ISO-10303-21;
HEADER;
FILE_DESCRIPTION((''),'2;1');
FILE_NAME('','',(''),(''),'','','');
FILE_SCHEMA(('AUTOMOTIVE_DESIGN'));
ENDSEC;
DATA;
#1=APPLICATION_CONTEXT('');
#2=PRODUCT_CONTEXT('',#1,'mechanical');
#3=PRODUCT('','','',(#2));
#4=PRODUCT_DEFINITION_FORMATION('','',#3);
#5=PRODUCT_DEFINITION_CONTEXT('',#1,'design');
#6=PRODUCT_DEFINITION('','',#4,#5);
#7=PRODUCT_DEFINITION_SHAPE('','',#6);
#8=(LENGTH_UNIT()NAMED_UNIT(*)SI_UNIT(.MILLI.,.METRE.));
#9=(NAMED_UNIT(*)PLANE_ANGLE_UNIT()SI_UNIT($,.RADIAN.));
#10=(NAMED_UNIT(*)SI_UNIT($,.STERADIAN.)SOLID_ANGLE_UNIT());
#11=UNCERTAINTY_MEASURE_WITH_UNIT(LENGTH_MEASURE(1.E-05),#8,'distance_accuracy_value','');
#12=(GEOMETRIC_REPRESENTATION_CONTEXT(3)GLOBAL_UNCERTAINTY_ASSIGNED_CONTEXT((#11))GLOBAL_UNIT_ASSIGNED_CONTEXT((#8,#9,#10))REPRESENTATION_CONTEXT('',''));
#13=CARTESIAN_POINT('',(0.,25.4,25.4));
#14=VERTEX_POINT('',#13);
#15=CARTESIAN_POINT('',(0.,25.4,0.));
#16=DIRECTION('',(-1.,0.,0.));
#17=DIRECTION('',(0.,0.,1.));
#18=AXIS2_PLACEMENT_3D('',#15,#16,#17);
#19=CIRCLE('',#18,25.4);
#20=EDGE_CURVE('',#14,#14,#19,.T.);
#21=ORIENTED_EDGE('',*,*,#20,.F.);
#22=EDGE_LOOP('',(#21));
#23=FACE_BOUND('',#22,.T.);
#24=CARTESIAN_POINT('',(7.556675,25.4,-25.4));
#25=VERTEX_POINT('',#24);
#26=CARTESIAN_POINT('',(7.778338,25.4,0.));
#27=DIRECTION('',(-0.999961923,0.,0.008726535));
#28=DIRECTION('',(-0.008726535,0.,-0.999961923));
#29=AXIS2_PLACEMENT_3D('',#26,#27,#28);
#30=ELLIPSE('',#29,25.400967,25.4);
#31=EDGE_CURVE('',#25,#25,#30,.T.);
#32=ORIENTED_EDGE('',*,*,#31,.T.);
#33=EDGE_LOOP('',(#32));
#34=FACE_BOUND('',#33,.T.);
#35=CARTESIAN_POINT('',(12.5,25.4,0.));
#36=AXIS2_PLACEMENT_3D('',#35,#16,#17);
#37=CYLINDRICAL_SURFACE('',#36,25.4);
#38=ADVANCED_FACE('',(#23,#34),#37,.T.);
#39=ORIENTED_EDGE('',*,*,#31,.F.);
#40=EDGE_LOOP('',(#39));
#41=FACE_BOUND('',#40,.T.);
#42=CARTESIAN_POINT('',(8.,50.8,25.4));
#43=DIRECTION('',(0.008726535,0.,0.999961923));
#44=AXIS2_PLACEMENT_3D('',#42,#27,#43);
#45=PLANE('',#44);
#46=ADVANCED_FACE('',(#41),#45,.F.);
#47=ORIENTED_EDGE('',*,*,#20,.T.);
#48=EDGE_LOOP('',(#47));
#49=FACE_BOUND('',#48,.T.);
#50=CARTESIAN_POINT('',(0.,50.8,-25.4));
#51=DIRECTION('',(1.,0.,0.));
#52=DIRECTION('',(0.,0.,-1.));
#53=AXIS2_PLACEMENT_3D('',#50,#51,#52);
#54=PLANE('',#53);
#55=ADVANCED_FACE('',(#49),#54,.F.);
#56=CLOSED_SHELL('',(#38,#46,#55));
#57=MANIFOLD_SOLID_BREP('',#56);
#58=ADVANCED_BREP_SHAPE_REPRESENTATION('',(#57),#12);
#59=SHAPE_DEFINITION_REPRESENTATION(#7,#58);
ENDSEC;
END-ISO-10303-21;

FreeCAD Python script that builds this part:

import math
import FreeCAD as App
import Part
import Sketcher
Q = App.Units.Quantity


def add_polygon(sketch, points):
    """Adds a closed chain of lines whose ends are joined by coincident constraints."""
    first, n = sketch.GeometryCount, len(points)
    for a, b in zip(points, points[1:] + points[:1]):
        sketch.addGeometry(Part.LineSegment(App.Vector(*a, 0), App.Vector(*b, 0)), False)
    for i in range(n):
        sketch.addConstraint(Sketcher.Constraint("Coincident", first + i, 2, first + (i + 1) % n, 1))

doc = App.newDocument("Part")
params = doc.addObject("Spreadsheet::Sheet", "Params")
for row, (alias, value) in enumerate([
    ("sketch1_width", "8 mm"),
    ("sketch1_height", "50.8 mm"),
    ("pad1_length", "50.8 mm"),
    ("sketch2_radius", "25.4 mm"),
    ("pocket1_length", "12.5 mm"),
], start=1):
    params.set(f"A{row}", alias)
    params.set(f"B{row}", "=" + value)
    params.setAlias(f"B{row}", alias)

body = doc.addObject("PartDesign::Body", "Body")

# Sketch on XZ plane
sketch1 = body.newObject("Sketcher::SketchObject", "Sketch")
sketch1.AttachmentSupport = (doc.getObject("XZ_Plane"), [""])
sketch1.MapMode = "FlatFace"
add_polygon(sketch1, [(0, -25.4), (0, 25.4), (8, 25.4), (7.556675, -25.4)])  # lines 0-3
sketch1.addConstraint([
    Sketcher.Constraint("Vertical", 0),
    Sketcher.Constraint("Horizontal", 1),
    Sketcher.Constraint("Horizontal", 3),
    Sketcher.Constraint("Symmetric", 0, 2, 3, 2, -1, 1),
    Sketcher.Constraint("DistanceX", 1, 1, 1, 2, 8.0),
    Sketcher.Constraint("DistanceY", 0, 1, 0, 2, 50.8),
    Sketcher.Constraint("Angle", 2, Q("-90.5 deg")),
])
sketch1.setExpression("Constraints[8]", "Params.sketch1_width")
sketch1.setExpression("Constraints[9]", "Params.sketch1_height")
pad1 = body.newObject("PartDesign::Pad", "Pad")
pad1.Profile = sketch1
pad1.setExpression("Length", "Params.pad1_length")
pad1.Reversed = True

# Sketch on YZ plane
sketch2 = body.newObject("Sketcher::SketchObject", "Sketch001")
sketch2.AttachmentSupport = (doc.getObject("YZ_Plane"), [""])
sketch2.MapMode = "FlatFace"
sketch2.addGeometry([
    Part.LineSegment(App.Vector(50.8, -25.4, 0), App.Vector(25.4, -25.4, 0)),  # 0
    Part.ArcOfCircle(Part.Circle(App.Vector(25.4, 0, 0), App.Vector(0, 0, 1), 25.4), math.radians(-90), math.radians(0)),  # 1
    Part.LineSegment(App.Vector(50.8, 0, 0), App.Vector(50.8, -25.4, 0)),  # 2
    Part.LineSegment(App.Vector(25.4, -25.4, 0), App.Vector(0, -25.4, 0)),  # 3
    Part.LineSegment(App.Vector(0, -25.4, 0), App.Vector(0, 0, 0)),  # 4
    Part.ArcOfCircle(Part.Circle(App.Vector(25.4, 0, 0), App.Vector(0, 0, 1), 25.4), math.radians(-180), math.radians(-90)),  # 5
    Part.ArcOfCircle(Part.Circle(App.Vector(25.4, 0, 0), App.Vector(0, 0, 1), 25.4), math.radians(90), math.radians(180)),  # 6
    Part.LineSegment(App.Vector(0, 0, 0), App.Vector(0, 25.4, 0)),  # 7
    Part.LineSegment(App.Vector(0, 25.4, 0), App.Vector(25.4, 25.4, 0)),  # 8
    Part.ArcOfCircle(Part.Circle(App.Vector(25.4, 0, 0), App.Vector(0, 0, 1), 25.4), math.radians(0), math.radians(90)),  # 9
    Part.LineSegment(App.Vector(25.4, 25.4, 0), App.Vector(50.8, 25.4, 0)),  # 10
    Part.LineSegment(App.Vector(50.8, 25.4, 0), App.Vector(50.8, 0, 0)),  # 11
], False)
sketch2.addConstraint([
    Sketcher.Constraint("Tangent", 0, 2, 1, 1),
    Sketcher.Constraint("Tangent", 1, 2, 2, 1),
    Sketcher.Constraint("Coincident", 2, 2, 0, 1),
    Sketcher.Constraint("Coincident", 3, 2, 4, 1),
    Sketcher.Constraint("Tangent", 4, 2, 5, 1),
    Sketcher.Constraint("Tangent", 5, 2, 3, 1),
    Sketcher.Constraint("Tangent", 6, 2, 7, 1),
    Sketcher.Constraint("Coincident", 7, 2, 8, 1),
    Sketcher.Constraint("Tangent", 8, 2, 6, 1),
    Sketcher.Constraint("Tangent", 9, 2, 10, 1),
    Sketcher.Constraint("Coincident", 10, 2, 11, 1),
    Sketcher.Constraint("Tangent", 11, 2, 9, 1),
    Sketcher.Constraint("Horizontal", 0),
    Sketcher.Constraint("Vertical", 2),
    Sketcher.Constraint("Horizontal", 3),
    Sketcher.Constraint("Vertical", 4),
    Sketcher.Constraint("Vertical", 7),
    Sketcher.Constraint("Horizontal", 8),
    Sketcher.Constraint("Horizontal", 10),
    Sketcher.Constraint("Vertical", 11),
    Sketcher.Constraint("Coincident", 4, 2, -1, 1),
    Sketcher.Constraint("Coincident", 6, 2, -1, 1),
    Sketcher.Constraint("Coincident", 5, 3, 1, 3),
    Sketcher.Constraint("Coincident", 9, 3, 1, 3),
    Sketcher.Constraint("Coincident", 9, 2, 8, 2),
    Sketcher.Constraint("Equal", 1, 5),
    Sketcher.Constraint("Radius", 1, 25.4),
])
sketch2.setExpression("Constraints[26]", "Params.sketch2_radius")
pocket1 = body.newObject("PartDesign::Pocket", "Pocket")
pocket1.Profile = sketch2
pocket1.setExpression("Length", "Params.pocket1_length")
pocket1.Reversed = True

doc.recompute()
